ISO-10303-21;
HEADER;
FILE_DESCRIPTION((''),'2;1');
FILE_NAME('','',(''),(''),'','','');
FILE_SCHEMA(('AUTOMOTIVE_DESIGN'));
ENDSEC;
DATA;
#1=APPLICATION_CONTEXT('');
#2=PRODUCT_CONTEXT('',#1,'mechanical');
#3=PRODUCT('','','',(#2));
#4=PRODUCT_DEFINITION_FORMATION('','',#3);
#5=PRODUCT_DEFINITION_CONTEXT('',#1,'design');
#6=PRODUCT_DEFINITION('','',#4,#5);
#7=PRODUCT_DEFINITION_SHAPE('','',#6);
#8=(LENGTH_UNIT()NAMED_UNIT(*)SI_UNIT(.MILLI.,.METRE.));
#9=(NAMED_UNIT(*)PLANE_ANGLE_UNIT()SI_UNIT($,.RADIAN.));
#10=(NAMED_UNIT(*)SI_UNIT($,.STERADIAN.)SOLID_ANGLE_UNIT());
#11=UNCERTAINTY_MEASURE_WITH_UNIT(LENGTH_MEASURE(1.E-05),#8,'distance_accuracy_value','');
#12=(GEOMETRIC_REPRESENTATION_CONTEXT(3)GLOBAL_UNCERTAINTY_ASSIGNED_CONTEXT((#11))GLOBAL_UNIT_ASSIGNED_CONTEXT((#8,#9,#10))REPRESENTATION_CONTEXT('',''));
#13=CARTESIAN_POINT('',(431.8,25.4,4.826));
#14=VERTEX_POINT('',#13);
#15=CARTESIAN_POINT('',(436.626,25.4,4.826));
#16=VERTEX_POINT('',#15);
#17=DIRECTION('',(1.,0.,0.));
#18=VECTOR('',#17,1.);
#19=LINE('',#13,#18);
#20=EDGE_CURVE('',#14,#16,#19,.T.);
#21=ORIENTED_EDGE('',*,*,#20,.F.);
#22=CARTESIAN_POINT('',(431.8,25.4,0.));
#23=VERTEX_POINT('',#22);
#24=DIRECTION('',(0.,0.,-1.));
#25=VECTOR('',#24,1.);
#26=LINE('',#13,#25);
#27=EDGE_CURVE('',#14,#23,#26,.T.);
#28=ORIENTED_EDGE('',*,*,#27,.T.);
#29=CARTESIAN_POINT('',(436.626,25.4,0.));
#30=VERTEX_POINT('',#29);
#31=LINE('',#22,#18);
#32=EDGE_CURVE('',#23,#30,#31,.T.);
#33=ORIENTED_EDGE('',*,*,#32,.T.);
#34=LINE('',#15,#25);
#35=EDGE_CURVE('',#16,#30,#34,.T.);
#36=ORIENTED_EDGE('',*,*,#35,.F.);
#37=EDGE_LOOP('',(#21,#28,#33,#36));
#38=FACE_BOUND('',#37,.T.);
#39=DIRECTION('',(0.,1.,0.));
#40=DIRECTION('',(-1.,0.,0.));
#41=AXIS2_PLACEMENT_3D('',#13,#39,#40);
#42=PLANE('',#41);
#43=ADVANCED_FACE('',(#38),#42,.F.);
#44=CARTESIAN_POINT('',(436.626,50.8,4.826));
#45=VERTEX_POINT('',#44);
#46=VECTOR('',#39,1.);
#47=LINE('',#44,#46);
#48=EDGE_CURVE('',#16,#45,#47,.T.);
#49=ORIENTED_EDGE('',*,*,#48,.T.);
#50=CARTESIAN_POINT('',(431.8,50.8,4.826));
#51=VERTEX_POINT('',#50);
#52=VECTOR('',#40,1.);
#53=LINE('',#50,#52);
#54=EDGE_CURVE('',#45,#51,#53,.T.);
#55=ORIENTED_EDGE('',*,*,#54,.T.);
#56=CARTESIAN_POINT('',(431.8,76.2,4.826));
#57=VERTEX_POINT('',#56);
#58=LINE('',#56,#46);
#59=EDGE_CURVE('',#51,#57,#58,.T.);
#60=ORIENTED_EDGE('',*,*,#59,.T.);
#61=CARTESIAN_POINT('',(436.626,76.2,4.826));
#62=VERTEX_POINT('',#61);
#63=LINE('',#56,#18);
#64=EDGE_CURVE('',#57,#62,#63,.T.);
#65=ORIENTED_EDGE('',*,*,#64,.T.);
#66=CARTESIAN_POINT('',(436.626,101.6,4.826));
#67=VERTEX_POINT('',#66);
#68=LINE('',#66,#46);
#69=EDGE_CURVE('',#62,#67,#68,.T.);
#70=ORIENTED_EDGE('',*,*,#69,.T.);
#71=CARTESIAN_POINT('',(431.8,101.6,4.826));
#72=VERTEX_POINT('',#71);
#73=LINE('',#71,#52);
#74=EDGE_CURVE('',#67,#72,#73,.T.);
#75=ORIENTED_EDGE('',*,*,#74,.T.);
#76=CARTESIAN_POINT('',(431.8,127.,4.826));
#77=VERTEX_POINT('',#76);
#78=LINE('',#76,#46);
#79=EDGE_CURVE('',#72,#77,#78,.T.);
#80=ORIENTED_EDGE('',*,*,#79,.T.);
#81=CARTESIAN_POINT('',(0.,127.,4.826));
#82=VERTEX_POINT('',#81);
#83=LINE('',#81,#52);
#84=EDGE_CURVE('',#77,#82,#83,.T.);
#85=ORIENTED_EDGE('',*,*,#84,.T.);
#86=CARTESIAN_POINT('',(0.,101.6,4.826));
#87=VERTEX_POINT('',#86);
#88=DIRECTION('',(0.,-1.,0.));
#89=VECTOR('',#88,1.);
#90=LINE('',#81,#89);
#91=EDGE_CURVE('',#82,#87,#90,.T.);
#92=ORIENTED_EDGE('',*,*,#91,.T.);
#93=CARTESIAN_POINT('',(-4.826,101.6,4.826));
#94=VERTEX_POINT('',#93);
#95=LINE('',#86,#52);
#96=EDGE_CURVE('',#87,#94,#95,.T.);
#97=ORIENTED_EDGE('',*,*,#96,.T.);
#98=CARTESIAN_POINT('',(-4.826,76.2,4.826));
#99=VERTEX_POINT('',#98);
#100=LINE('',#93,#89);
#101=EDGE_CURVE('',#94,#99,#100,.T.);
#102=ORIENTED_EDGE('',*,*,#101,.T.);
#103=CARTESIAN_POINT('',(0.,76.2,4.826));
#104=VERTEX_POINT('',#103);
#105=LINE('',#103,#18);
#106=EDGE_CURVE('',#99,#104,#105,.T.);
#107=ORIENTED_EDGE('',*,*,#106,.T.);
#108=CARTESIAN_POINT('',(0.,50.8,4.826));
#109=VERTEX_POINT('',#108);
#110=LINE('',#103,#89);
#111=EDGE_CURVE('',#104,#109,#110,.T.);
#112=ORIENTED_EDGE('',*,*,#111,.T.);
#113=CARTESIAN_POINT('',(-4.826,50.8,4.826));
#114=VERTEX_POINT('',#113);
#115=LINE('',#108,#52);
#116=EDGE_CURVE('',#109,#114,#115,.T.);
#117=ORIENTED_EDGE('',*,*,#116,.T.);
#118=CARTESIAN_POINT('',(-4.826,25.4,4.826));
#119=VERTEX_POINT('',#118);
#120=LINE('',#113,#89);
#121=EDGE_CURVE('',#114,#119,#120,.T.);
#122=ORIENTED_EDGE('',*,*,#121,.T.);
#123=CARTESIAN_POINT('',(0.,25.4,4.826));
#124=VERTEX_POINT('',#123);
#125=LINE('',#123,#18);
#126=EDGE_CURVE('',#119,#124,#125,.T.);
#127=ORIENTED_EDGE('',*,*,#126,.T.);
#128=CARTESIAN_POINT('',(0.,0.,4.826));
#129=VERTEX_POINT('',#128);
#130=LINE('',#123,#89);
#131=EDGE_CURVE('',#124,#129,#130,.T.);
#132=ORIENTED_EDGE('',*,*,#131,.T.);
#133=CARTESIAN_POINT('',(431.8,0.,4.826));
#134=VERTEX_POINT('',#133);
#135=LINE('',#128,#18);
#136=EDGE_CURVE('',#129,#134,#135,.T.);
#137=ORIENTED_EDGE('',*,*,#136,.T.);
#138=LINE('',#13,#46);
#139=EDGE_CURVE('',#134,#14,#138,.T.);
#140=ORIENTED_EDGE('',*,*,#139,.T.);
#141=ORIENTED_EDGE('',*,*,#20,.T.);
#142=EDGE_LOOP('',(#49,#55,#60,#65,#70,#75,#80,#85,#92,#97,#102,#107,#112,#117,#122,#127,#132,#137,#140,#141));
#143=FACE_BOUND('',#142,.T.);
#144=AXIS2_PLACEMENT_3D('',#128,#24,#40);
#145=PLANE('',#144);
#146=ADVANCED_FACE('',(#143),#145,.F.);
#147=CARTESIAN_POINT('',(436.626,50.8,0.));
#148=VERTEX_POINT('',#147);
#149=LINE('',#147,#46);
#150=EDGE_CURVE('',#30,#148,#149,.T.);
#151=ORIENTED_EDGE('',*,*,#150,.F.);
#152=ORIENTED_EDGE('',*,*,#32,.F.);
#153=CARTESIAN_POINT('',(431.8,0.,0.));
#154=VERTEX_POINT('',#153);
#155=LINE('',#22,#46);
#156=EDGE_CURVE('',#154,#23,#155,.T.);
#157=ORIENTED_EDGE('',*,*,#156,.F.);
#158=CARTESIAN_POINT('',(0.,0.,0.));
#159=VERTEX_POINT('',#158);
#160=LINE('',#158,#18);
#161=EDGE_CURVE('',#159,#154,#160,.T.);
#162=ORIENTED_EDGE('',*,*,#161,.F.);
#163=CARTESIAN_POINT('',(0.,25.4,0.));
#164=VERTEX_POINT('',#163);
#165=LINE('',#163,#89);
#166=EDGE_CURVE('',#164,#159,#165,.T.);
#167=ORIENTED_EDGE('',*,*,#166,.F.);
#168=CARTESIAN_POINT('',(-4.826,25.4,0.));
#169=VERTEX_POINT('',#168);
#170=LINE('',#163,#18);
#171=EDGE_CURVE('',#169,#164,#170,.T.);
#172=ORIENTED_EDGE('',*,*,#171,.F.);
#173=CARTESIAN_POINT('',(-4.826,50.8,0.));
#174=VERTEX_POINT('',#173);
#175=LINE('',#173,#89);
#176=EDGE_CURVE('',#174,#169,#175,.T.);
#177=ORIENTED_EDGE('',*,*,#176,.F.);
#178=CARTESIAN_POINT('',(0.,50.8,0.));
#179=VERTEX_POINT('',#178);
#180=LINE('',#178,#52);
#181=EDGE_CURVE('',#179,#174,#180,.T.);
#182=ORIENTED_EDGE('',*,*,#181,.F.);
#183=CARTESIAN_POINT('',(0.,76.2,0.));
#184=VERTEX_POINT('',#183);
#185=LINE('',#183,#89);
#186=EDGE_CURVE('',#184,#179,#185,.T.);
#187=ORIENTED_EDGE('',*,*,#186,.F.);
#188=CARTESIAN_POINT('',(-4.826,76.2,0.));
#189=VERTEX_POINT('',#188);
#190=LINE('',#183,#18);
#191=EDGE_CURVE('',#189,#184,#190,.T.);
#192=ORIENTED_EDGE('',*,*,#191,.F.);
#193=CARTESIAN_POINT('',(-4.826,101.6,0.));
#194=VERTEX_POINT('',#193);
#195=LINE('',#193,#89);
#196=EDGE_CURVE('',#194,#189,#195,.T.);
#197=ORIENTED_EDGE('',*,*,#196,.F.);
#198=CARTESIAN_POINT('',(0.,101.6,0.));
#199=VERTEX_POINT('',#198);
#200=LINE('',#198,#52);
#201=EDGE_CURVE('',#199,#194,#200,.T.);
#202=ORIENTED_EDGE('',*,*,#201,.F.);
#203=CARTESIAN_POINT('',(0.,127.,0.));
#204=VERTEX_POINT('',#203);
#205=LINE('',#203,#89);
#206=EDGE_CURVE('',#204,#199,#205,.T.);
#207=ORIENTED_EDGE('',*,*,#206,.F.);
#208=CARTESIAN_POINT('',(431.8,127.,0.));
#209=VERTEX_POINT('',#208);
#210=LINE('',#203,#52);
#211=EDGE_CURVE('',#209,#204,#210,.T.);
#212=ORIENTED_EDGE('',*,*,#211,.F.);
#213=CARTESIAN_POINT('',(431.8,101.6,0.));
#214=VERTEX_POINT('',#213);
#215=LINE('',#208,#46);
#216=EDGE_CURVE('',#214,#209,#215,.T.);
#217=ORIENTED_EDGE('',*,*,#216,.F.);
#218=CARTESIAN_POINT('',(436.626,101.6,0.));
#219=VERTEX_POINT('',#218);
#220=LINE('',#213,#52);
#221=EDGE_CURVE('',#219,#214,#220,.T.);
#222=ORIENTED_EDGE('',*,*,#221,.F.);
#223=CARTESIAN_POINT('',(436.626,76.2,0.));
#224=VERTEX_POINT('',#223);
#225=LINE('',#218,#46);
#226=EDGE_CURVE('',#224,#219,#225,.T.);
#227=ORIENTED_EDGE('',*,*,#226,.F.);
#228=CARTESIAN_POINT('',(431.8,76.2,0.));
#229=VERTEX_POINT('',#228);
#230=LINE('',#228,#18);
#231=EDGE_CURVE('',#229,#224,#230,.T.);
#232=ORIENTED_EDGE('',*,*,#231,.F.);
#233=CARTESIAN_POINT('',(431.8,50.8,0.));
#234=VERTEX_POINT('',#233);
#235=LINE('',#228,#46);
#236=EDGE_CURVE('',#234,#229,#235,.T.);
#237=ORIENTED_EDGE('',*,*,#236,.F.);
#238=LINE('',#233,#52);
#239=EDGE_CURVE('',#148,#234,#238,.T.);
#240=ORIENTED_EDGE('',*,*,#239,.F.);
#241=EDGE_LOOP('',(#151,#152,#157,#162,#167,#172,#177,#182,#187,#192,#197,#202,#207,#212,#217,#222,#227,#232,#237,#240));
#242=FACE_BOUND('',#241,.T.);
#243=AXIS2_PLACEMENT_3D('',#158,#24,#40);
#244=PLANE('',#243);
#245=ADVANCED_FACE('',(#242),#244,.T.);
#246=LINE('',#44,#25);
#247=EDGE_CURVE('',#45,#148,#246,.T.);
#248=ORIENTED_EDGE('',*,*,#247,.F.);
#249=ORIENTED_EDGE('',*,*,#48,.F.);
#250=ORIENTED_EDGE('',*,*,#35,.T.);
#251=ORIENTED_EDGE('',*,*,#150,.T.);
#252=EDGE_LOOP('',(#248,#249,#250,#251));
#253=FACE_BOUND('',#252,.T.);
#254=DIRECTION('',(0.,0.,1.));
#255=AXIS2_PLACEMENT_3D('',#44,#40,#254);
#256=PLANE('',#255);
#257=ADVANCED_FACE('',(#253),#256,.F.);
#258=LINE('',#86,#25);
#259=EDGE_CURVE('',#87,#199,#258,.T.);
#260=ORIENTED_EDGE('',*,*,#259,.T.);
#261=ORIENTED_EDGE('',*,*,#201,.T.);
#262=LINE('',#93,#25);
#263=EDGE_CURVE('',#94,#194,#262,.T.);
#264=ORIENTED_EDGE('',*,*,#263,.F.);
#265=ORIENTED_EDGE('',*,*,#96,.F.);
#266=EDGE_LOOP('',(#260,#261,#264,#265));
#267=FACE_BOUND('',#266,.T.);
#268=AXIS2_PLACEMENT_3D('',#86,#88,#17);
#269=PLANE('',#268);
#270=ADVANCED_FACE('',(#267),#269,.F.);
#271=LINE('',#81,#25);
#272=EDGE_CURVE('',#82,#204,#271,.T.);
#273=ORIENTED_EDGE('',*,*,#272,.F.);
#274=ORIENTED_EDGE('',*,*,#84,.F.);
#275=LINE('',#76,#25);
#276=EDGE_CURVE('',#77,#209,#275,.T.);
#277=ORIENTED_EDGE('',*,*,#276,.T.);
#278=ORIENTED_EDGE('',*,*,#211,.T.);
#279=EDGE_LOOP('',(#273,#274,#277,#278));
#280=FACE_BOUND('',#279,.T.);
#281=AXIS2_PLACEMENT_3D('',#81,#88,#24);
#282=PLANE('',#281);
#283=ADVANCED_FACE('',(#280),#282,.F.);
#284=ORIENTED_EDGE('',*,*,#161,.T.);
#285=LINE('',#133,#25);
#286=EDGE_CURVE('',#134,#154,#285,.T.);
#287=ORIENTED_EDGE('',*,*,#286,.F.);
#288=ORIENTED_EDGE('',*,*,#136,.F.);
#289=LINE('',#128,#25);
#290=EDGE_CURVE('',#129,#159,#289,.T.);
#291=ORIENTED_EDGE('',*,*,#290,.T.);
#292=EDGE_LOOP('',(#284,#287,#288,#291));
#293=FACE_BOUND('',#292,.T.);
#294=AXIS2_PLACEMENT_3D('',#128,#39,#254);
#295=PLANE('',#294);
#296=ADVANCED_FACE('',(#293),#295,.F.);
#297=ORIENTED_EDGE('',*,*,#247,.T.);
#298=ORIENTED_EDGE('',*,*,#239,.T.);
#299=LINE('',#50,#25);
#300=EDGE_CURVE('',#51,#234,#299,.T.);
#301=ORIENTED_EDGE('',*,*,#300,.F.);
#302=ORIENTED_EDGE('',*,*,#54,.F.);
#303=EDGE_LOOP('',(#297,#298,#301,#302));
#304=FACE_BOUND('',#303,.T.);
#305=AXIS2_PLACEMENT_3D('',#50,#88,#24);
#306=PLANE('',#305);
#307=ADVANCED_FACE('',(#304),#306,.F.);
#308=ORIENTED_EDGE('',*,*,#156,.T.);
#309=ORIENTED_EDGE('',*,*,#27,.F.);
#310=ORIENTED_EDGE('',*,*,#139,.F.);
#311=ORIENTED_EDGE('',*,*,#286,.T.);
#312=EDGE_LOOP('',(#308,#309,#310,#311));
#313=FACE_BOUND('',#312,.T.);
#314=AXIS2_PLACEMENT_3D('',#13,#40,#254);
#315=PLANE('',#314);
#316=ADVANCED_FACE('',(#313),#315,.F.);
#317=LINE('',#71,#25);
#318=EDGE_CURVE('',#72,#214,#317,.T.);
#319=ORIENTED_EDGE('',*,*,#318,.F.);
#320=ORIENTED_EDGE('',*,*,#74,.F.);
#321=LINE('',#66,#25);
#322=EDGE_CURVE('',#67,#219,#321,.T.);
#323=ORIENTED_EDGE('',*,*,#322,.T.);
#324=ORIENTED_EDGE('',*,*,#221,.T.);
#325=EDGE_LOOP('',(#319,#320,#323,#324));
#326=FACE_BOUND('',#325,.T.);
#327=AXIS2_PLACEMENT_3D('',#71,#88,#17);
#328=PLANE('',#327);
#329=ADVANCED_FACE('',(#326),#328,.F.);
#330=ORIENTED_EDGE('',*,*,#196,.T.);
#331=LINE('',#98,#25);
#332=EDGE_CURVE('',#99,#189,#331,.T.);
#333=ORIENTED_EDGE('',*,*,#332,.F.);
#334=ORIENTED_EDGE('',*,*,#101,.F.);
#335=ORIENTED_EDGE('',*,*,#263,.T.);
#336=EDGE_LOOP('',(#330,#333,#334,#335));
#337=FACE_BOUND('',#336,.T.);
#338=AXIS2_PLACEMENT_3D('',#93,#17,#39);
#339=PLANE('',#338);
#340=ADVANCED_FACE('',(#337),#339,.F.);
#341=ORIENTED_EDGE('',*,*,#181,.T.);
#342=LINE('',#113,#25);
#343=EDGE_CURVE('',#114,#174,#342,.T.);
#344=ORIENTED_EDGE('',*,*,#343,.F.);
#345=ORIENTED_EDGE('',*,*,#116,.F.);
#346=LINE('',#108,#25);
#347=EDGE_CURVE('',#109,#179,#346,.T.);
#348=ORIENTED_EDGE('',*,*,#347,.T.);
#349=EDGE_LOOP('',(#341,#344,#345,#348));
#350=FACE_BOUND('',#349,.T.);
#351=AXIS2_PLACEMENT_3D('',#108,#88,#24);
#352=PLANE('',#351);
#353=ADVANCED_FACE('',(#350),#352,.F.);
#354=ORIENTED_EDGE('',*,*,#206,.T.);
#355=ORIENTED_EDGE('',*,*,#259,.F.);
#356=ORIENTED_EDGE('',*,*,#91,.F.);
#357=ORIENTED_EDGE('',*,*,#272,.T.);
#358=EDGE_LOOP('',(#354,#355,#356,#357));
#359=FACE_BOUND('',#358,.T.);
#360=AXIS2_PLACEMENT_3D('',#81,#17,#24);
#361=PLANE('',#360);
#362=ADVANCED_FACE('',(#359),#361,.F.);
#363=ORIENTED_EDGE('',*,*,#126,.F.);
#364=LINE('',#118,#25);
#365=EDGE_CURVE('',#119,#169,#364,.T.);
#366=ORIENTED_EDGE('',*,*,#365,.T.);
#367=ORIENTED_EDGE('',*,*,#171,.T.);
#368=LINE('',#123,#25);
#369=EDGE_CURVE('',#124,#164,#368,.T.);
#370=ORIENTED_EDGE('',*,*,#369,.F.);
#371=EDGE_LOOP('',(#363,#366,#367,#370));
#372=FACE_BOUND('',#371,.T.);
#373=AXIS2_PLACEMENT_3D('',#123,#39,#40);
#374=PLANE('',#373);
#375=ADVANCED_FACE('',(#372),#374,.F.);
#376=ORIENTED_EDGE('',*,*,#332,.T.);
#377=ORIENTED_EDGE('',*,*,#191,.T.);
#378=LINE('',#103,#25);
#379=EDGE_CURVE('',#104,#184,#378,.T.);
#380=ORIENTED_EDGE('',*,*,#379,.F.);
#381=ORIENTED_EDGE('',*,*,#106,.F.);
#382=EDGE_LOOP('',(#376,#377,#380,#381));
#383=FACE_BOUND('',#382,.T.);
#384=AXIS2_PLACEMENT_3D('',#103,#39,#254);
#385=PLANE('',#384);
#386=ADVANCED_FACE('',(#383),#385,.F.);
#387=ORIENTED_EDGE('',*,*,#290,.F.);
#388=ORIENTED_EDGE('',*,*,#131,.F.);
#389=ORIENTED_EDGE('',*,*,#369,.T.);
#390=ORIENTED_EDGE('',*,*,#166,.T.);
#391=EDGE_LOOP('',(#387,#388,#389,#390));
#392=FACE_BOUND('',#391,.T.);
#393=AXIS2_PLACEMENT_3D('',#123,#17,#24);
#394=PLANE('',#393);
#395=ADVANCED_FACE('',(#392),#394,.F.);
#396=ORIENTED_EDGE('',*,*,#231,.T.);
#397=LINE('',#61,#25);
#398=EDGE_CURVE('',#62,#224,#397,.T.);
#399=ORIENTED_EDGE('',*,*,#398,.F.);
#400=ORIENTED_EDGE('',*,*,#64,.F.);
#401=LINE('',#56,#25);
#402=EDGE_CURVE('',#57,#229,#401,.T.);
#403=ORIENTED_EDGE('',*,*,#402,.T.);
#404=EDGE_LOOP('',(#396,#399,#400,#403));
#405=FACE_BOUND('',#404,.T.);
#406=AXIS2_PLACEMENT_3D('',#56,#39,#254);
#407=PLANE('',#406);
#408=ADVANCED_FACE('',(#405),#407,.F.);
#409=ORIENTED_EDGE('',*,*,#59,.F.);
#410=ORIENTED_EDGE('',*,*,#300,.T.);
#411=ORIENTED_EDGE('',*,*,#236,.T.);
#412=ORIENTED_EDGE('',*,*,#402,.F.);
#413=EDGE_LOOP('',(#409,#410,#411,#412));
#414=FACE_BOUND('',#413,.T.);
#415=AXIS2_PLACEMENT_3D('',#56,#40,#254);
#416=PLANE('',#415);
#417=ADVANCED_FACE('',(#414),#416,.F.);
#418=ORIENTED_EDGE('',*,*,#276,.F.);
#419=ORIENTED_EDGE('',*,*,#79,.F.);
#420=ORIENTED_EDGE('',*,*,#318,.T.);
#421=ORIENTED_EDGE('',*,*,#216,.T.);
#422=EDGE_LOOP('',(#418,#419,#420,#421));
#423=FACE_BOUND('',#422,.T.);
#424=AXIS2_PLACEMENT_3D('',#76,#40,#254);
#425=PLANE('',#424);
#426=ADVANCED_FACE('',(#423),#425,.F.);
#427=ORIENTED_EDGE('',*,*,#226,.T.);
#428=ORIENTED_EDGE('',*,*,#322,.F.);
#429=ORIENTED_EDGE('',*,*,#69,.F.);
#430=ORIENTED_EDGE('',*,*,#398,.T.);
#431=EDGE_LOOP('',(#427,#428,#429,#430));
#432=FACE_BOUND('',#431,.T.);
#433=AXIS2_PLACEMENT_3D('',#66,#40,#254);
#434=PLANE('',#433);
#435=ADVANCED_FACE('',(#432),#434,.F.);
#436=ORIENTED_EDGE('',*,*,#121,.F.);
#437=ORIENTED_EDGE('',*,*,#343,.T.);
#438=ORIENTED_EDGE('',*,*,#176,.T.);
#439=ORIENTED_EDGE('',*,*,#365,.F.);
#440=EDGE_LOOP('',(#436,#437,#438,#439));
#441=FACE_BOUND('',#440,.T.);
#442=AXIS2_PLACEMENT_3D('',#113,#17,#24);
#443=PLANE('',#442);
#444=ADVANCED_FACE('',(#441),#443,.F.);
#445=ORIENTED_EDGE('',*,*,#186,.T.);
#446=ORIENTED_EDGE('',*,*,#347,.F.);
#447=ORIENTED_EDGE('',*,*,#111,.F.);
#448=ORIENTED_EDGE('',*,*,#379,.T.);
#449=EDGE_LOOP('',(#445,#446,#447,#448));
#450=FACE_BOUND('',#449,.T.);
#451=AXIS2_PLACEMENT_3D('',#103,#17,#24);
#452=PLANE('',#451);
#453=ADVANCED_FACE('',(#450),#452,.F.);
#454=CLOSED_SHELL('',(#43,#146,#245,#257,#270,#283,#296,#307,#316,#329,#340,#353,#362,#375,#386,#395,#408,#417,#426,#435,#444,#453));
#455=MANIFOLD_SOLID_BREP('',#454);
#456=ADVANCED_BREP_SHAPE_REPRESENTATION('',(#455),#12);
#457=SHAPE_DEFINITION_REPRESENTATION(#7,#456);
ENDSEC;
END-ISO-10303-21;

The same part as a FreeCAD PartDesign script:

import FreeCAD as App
import Part
import Sketcher
Q = App.Units.Quantity


def add_polygon(sketch, points):
    """Adds a closed chain of lines whose ends are joined by coincident constraints."""
    first, n = sketch.GeometryCount, len(points)
    for a, b in zip(points, points[1:] + points[:1]):
        sketch.addGeometry(Part.LineSegment(App.Vector(*a, 0), App.Vector(*b, 0)), False)
    for i in range(n):
        sketch.addConstraint(Sketcher.Constraint("Coincident", first + i, 2, first + (i + 1) % n, 1))

doc = App.newDocument("Part")
body = doc.addObject("PartDesign::Body", "Body")

# Sketch on XY plane
sketch1 = doc.addObject("Sketcher::SketchObject", "Sketch")
body.addObject(sketch1)
sketch1.AttachmentSupport = (doc.XY_Plane, [""])
sketch1.MapMode = "FlatFace"
add_polygon(sketch1, [(0, 76.2), (0, 50.8), (-4.8, 50.8), (-4.8, 25.4), (0, 25.4), (0, 0), (431.8, 0), (431.8, 25.4), (436.6, 25.4), (436.6, 50.8), (431.8, 50.8), (431.8, 76.2), (436.6, 76.2), (436.6, 101.6), (431.8, 101.6), (431.8, 127), (0, 127), (0, 101.6), (-4.8, 101.6), (-4.8, 76.2)])  # lines 0-19
sketch1.addConstraint(Sketcher.Constraint("Vertical", 0))
sketch1.addConstraint(Sketcher.Constraint("Horizontal", 1))
sketch1.addConstraint(Sketcher.Constraint("Vertical", 2))
sketch1.addConstraint(Sketcher.Constraint("Horizontal", 3))
sketch1.addConstraint(Sketcher.Constraint("Vertical", 4))
sketch1.addConstraint(Sketcher.Constraint("Horizontal", 5))
sketch1.addConstraint(Sketcher.Constraint("Vertical", 6))
sketch1.addConstraint(Sketcher.Constraint("Horizontal", 7))
sketch1.addConstraint(Sketcher.Constraint("Vertical", 8))
sketch1.addConstraint(Sketcher.Constraint("Horizontal", 9))
sketch1.addConstraint(Sketcher.Constraint("Vertical", 10))
sketch1.addConstraint(Sketcher.Constraint("Horizontal", 11))
sketch1.addConstraint(Sketcher.Constraint("Vertical", 12))
sketch1.addConstraint(Sketcher.Constraint("Horizontal", 13))
sketch1.addConstraint(Sketcher.Constraint("Vertical", 14))
sketch1.addConstraint(Sketcher.Constraint("Horizontal", 15))
sketch1.addConstraint(Sketcher.Constraint("Vertical", 16))
sketch1.addConstraint(Sketcher.Constraint("Horizontal", 17))
sketch1.addConstraint(Sketcher.Constraint("Vertical", 18))
sketch1.addConstraint(Sketcher.Constraint("Horizontal", 19))
sketch1.addConstraint(Sketcher.Constraint("Coincident", 4, 2, -1, 1))
sketch1.addConstraint(Sketcher.Constraint("PointOnObject", 0, 2, -2))
sketch1.addConstraint(Sketcher.Constraint("PointOnObject", 15, 2, -2))
sketch1.addConstraint(Sketcher.Constraint("Horizontal", 3, 2, 6, 2))
sketch1.addConstraint(Sketcher.Constraint("Horizontal", 1, 2, 8, 2))
sketch1.addConstraint(Sketcher.Constraint("Horizontal", 13, 2, 16, 2))
sketch1.addConstraint(Sketcher.Constraint("Horizontal", 11, 2, 18, 2))
sketch1.addConstraint(Sketcher.Constraint("Vertical", 6, 2, 9, 2))
sketch1.addConstraint(Sketcher.Constraint("Vertical", 8, 2, 11, 2))
sketch1.addConstraint(Sketcher.Constraint("Vertical", 10, 2, 13, 2))
sketch1.addConstraint(Sketcher.Constraint("Vertical", 2, 2, 17, 2))
sketch1.addConstraint(Sketcher.Constraint("Equal", 3, 7))
sketch1.addConstraint(Sketcher.Constraint("Equal", 0, 2))
sketch1.addConstraint(Sketcher.Constraint("Equal", 2, 4))
sketch1.addConstraint(Sketcher.Constraint("Equal", 10, 12))
sketch1.addConstraint(Sketcher.Constraint("Equal", 12, 14))
sketch1.addConstraint(Sketcher.Constraint("DistanceX", 5, 1, 5, 2, Q("17 in")))
sketch1.addConstraint(Sketcher.Constraint("DistanceY", 0, 2, 0, 1, Q("1 in")))
sketch1.addConstraint(Sketcher.Constraint("DistanceX", 1, 2, 1, 1, Q("0.19 in")))
pad1 = doc.addObject("PartDesign::Pad", "Pad")
body.addObject(pad1)
pad1.Profile = sketch1
pad1.Length = Q("0.19 in")

doc.recompute()
